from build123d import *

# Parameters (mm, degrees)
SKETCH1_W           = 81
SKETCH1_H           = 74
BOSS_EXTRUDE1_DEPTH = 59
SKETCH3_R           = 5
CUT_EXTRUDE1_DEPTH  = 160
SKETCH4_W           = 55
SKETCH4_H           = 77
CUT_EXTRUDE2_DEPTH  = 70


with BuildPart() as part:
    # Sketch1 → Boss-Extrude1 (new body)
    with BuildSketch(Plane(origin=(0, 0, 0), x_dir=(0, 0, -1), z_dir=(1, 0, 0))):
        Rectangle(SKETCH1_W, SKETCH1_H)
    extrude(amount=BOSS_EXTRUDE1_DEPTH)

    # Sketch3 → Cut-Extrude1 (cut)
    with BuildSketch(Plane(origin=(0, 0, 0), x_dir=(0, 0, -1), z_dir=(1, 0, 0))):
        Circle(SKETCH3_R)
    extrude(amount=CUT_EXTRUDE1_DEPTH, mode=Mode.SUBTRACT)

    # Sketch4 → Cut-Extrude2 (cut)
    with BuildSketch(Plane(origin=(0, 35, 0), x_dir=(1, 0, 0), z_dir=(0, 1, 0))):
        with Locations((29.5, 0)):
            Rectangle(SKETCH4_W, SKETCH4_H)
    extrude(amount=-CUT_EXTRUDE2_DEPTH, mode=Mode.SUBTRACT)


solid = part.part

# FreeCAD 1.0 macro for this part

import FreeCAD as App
import Part
import Sketcher

V = App.Vector
Q = App.Units.Quantity

doc = App.newDocument("Part")
body = doc.addObject("PartDesign::Body", "Body")

# Sketch on YZ plane
sketch1 = body.newObject("Sketcher::SketchObject", "Sketch")
sketch1.AttachmentSupport = (doc.getObject("YZ_Plane"), [""])
sketch1.MapMode = "FlatFace"
sketch1.addGeometry([
    Part.LineSegment(V(37, 40, 0), V(-37, 40, 0)),
    Part.LineSegment(V(-37, 40, 0), V(-37, -40, 0)),
    Part.LineSegment(V(-37, -40, 0), V(37, -40, 0)),
    Part.LineSegment(V(37, -40, 0), V(37, 40, 0)),
], False)
sketch1.addConstraint([
    Sketcher.Constraint("Coincident", 0, 2, 1, 1),
    Sketcher.Constraint("Coincident", 1, 2, 2, 1),
    Sketcher.Constraint("Coincident", 2, 2, 3, 1),
    Sketcher.Constraint("Coincident", 3, 2, 0, 1),
    Sketcher.Constraint("Horizontal", 0),
    Sketcher.Constraint("Vertical", 1),
    Sketcher.Constraint("Horizontal", 2),
    Sketcher.Constraint("Vertical", 3),
    Sketcher.Constraint("Symmetric", 0, 2, 2, 2, -1, 1),
    Sketcher.Constraint("DistanceX", 0, 2, 0, 1, Q("74 mm")),
    Sketcher.Constraint("DistanceY", 1, 2, 1, 1, Q("81 mm")),
])
pad1 = body.newObject("PartDesign::Pad", "Pad")
pad1.Profile = sketch1
pad1.Length = 59

# Sketch on YZ plane
sketch2 = body.newObject("Sketcher::SketchObject", "Sketch001")
sketch2.AttachmentSupport = (doc.getObject("YZ_Plane"), [""])
sketch2.MapMode = "FlatFace"
sketch2.addGeometry(Part.Circle(V(0, 0, 0), V(0, 0, 1), 5), False)
sketch2.addConstraint([
    Sketcher.Constraint("Coincident", 0, 3, -1, 1),
    Sketcher.Constraint("Diameter", 0, Q("10 mm")),
])
pocket1 = body.newObject("PartDesign::Pocket", "Pocket")
pocket1.Profile = sketch2
pocket1.Length = 160
pocket1.Reversed = True

# Sketch on XZ plane
sketch3 = body.newObject("Sketcher::SketchObject", "Sketch002")
sketch3.AttachmentSupport = (doc.getObject("XZ_Plane"), [""])
sketch3.MapMode = "FlatFace"
sketch3.AttachmentOffset = App.Placement(V(0, 0, -35), App.Rotation())
sketch3.addGeometry([
    Part.LineSegment(V(2, -38, 0), V(2, 38, 0)),
    Part.LineSegment(V(2, 38, 0), V(57, 38, 0)),
    Part.LineSegment(V(57, 38, 0), V(57, -38, 0)),
    Part.LineSegment(V(57, -38, 0), V(2, -38, 0)),
], False)
sketch3.addConstraint([
    Sketcher.Constraint("Coincident", 0, 2, 1, 1),
    Sketcher.Constraint("Coincident", 1, 2, 2, 1),
    Sketcher.Constraint("Coincident", 2, 2, 3, 1),
    Sketcher.Constraint("Coincident", 3, 2, 0, 1),
    Sketcher.Constraint("Vertical", 0),
    Sketcher.Constraint("Horizontal", 1),
    Sketcher.Constraint("Vertical", 2),
    Sketcher.Constraint("Horizontal", 3),
    Sketcher.Constraint("DistanceX", 1, 1, 1, 2, Q("55 mm")),
    Sketcher.Constraint("DistanceY", 0, 1, 0, 2, Q("77 mm")),
    Sketcher.Constraint("DistanceX", -1, 1, 0, 2, Q("2 mm")),
    Sketcher.Constraint("DistanceY", -1, 1, 0, 2, Q("38.5 mm")),
])
pocket2 = body.newObject("PartDesign::Pocket", "Pocket001")
pocket2.Profile = sketch3
pocket2.Length = 70
pocket2.Reversed = True

doc.recompute()
